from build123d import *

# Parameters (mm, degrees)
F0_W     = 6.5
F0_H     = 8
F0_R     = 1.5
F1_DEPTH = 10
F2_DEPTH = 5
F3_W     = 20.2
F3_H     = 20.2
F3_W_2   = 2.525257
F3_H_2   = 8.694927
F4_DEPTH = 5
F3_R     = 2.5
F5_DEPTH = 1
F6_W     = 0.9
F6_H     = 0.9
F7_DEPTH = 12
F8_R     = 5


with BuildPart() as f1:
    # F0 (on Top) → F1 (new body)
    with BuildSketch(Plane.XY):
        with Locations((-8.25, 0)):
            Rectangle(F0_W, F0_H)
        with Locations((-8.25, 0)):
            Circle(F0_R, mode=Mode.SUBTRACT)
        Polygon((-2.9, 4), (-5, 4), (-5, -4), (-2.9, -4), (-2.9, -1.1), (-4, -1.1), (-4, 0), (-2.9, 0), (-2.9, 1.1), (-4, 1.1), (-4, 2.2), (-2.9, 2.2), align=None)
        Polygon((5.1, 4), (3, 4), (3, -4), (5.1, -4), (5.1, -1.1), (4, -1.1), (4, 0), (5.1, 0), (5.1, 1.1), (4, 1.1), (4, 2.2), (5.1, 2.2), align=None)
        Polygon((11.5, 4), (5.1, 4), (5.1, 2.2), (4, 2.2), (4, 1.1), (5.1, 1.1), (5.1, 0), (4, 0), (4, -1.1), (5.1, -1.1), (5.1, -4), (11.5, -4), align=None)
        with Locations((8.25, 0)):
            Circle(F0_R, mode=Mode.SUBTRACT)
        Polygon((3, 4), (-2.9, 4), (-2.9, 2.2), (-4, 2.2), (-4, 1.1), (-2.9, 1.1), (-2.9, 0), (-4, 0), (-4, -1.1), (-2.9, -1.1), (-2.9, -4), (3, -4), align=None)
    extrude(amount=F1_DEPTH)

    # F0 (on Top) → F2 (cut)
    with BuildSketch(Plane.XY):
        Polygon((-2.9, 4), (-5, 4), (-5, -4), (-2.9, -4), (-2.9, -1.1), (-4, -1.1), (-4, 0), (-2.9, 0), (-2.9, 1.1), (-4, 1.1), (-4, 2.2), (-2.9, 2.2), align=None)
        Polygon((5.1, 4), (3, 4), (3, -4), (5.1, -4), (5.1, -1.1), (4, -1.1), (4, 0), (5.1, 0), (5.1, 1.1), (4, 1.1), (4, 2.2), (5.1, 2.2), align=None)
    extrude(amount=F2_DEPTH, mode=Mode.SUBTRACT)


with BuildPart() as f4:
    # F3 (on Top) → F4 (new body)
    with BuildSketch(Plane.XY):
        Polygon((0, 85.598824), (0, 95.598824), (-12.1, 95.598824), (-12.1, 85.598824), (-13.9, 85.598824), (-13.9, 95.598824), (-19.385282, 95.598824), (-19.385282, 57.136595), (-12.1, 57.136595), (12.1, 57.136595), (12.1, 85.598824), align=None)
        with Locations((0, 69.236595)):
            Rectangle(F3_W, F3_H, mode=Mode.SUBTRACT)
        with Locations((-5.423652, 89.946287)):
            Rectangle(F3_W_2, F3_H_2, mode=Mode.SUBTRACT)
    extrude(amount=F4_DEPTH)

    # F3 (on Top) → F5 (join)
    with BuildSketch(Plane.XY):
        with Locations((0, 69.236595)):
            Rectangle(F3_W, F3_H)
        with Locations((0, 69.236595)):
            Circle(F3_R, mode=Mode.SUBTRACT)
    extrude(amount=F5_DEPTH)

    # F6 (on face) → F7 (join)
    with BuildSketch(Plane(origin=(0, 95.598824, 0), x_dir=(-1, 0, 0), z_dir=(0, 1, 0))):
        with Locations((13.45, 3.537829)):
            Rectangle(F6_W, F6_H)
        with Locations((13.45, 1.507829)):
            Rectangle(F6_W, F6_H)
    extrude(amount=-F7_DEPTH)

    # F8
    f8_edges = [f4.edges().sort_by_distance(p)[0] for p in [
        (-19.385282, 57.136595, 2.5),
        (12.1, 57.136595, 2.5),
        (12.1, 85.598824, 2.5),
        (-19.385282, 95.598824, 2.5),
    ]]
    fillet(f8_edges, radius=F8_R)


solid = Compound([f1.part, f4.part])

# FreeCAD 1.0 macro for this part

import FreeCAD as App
import Part
import Sketcher

V = App.Vector


def edges_at(feature, points):
    """Names of the edges that pass closest to the given points."""
    edges = feature.Shape.Edges
    near = lambda p: min(range(len(edges)), key=lambda i: edges[i].distToShape(Part.Vertex(*p))[0])
    return sorted({f"Edge{near(p) + 1}" for p in points})


def add_polygon(sketch, points):
    """Adds a closed chain of lines whose ends are joined by coincident constraints."""
    first, n = sketch.GeometryCount, len(points)
    for a, b in zip(points, points[1:] + points[:1]):
        sketch.addGeometry(Part.LineSegment(App.Vector(*a, 0), App.Vector(*b, 0)), False)
    for i in range(n):
        sketch.addConstraint(Sketcher.Constraint("Coincident", first + i, 2, first + (i + 1) % n, 1))

doc = App.newDocument("Part")
params = doc.addObject("Spreadsheet::Sheet", "Params")
for row, (alias, value) in enumerate([
    ("sketch1_diameter", "3 mm"),
    ("sketch1_width", "23 mm"),
    ("sketch1_height", "8 mm"),
    ("pad1_length", "10 mm"),
    ("sketch2_height", "8 mm"),
    ("sketch2_width", "2.1 mm"),
    ("sketch2_width2", "1.1 mm"),
    ("pocket1_length", "5 mm"),
    ("sketch3_height", "10 mm"),
    ("sketch3_width", "12.1 mm"),
    ("sketch3_width2", "1.8 mm"),
    ("sketch3_width3", "20.2 mm"),
    ("pad2_length", "5 mm"),
    ("sketch4_diameter", "5 mm"),
    ("sketch4_width", "20.2 mm"),
    ("pad3_length", "1 mm"),
    ("sketch5_width", "0.9 mm"),
    ("pad4_length", "12 mm"),
    ("fillet_radius", "5 mm"),
], start=1):
    params.set(f"A{row}", alias)
    params.set(f"B{row}", "=" + value)
    params.setAlias(f"B{row}", alias)

body = doc.addObject("PartDesign::Body", "Body")

sketch1 = body.newObject("Sketcher::SketchObject", "Sketch")
sketch1.AttachmentSupport = (doc.getObject("XY_Plane"), [""])
sketch1.MapMode = "FlatFace"
add_polygon(sketch1, [(-11.5, 4), (-11.5, -4), (11.5, -4), (11.5, 4)])
sketch1.addGeometry(Part.Circle(V(-8.25, 0, 0), V(0, 0, 1), 1.5), False)
sketch1.addGeometry(Part.Circle(V(8.25, 0, 0), V(0, 0, 1), 1.5), False)
sketch1.addConstraint(Sketcher.Constraint("Vertical", 0))
sketch1.addConstraint(Sketcher.Constraint("Horizontal", 1))
sketch1.addConstraint(Sketcher.Constraint("Vertical", 2))
sketch1.addConstraint(Sketcher.Constraint("Horizontal", 3))
sketch1.addConstraint(Sketcher.Constraint("Equal", 4, 5))
sketch1.addConstraint(Sketcher.Constraint("Symmetric", 4, 3, 5, 3, -1, 1))
sketch1.addConstraint(Sketcher.Constraint("Symmetric", 0, 2, 2, 2, -1, 1))
sketch1.addConstraint(Sketcher.Constraint("PointOnObject", 4, 3, -1))
sketch1.addConstraint(Sketcher.Constraint("Diameter", 4, 3.0))
sketch1.addConstraint(Sketcher.Constraint("DistanceX", 1, 1, 1, 2, 23.0))
sketch1.addConstraint(Sketcher.Constraint("DistanceY", 0, 2, 0, 1, 8.0))
sketch1.addConstraint(Sketcher.Constraint("DistanceX", 4, 3, 5, 3, 16.5))
sketch1.setExpression("Constraints[12]", "Params.sketch1_diameter")
sketch1.setExpression("Constraints[13]", "Params.sketch1_width")
sketch1.setExpression("Constraints[14]", "Params.sketch1_height")
pad1 = body.newObject("PartDesign::Pad", "Pad")
pad1.Profile = sketch1
pad1.setExpression("Length", "Params.pad1_length")

sketch2 = body.newObject("Sketcher::SketchObject", "Sketch001")
sketch2.AttachmentSupport = (doc.getObject("XY_Plane"), [""])
sketch2.MapMode = "FlatFace"
add_polygon(sketch2, [(-2.9, 4), (-5, 4), (-5, -4), (-2.9, -4), (-2.9, -1.1), (-4, -1.1), (-4, 0), (-2.9, 0), (-2.9, 1.1), (-4, 1.1), (-4, 2.2), (-2.9, 2.2)])
add_polygon(sketch2, [(5.1, 4), (3, 4), (3, -4), (5.1, -4), (5.1, -1.1), (4, -1.1), (4, 0), (5.1, 0), (5.1, 1.1), (4, 1.1), (4, 2.2), (5.1, 2.2)])
sketch2.addConstraint(Sketcher.Constraint("Horizontal", 0))
sketch2.addConstraint(Sketcher.Constraint("Vertical", 1))
sketch2.addConstraint(Sketcher.Constraint("Horizontal", 2))
sketch2.addConstraint(Sketcher.Constraint("Vertical", 3))
sketch2.addConstraint(Sketcher.Constraint("Horizontal", 4))
sketch2.addConstraint(Sketcher.Constraint("Vertical", 5))
sketch2.addConstraint(Sketcher.Constraint("Horizontal", 6))
sketch2.addConstraint(Sketcher.Constraint("Vertical", 7))
sketch2.addConstraint(Sketcher.Constraint("Horizontal", 8))
sketch2.addConstraint(Sketcher.Constraint("Vertical", 9))
sketch2.addConstraint(Sketcher.Constraint("Horizontal", 10))
sketch2.addConstraint(Sketcher.Constraint("Vertical", 11))
sketch2.addConstraint(Sketcher.Constraint("Horizontal", 12))
sketch2.addConstraint(Sketcher.Constraint("Vertical", 13))
sketch2.addConstraint(Sketcher.Constraint("Horizontal", 14))
sketch2.addConstraint(Sketcher.Constraint("Vertical", 15))
sketch2.addConstraint(Sketcher.Constraint("Horizontal", 16))
sketch2.addConstraint(Sketcher.Constraint("Vertical", 17))
sketch2.addConstraint(Sketcher.Constraint("Horizontal", 18))
sketch2.addConstraint(Sketcher.Constraint("Vertical", 19))
sketch2.addConstraint(Sketcher.Constraint("Horizontal", 20))
sketch2.addConstraint(Sketcher.Constraint("Vertical", 21))
sketch2.addConstraint(Sketcher.Constraint("Horizontal", 22))
sketch2.addConstraint(Sketcher.Constraint("Vertical", 23))
sketch2.addConstraint(Sketcher.Constraint("Symmetric", 8, 2, 16, 2, -1, 1))
sketch2.addConstraint(Sketcher.Constraint("Symmetric", 5, 2, 17, 2, -1, 1))
sketch2.addConstraint(Sketcher.Constraint("Symmetric", 4, 2, 20, 2, -1, 1))
sketch2.addConstraint(Sketcher.Constraint("Symmetric", 3, 2, 7, 2, -1))
sketch2.addConstraint(Sketcher.Constraint("Symmetric", 2, 2, 11, 2, -1))
sketch2.addConstraint(Sketcher.Constraint("Symmetric", 14, 2, 23, 2, -1))
sketch2.addConstraint(Sketcher.Constraint("PointOnObject", 5, 2, -1))
sketch2.addConstraint(Sketcher.Constraint("Horizontal", 11, 2, 12, 2))
sketch2.addConstraint(Sketcher.Constraint("Horizontal", 10, 2, 21, 2))
sketch2.addConstraint(Sketcher.Constraint("Vertical", 15, 2, 18, 2))
sketch2.addConstraint(Sketcher.Constraint("Equal", 2, 12))
sketch2.addConstraint(Sketcher.Constraint("Equal", 10, 16))
sketch2.addConstraint(Sketcher.Constraint("Equal", 22, 5))
sketch2.addConstraint(Sketcher.Constraint("Equal", 7, 9))
sketch2.addConstraint(Sketcher.Constraint("DistanceY", 1, 2, 1, 1, 8.0))
sketch2.addConstraint(Sketcher.Constraint("DistanceX", 0, 2, 0, 1, 2.1))
sketch2.addConstraint(Sketcher.Constraint("DistanceX", 4, 2, 4, 1, 1.1))
sketch2.addConstraint(Sketcher.Constraint("DistanceX", 0, 2, -1, 1, 5.0))
sketch2.setExpression("Constraints[62]", "Params.sketch2_height")
sketch2.setExpression("Constraints[63]", "Params.sketch2_width")
sketch2.setExpression("Constraints[64]", "Params.sketch2_width2")
pocket1 = body.newObject("PartDesign::Pocket", "Pocket")
pocket1.Profile = sketch2
pocket1.setExpression("Length", "Params.pocket1_length")
pocket1.Reversed = True
body2 = doc.addObject("PartDesign::Body", "Body001")

sketch3 = body2.newObject("Sketcher::SketchObject", "Sketch002")
sketch3.AttachmentSupport = (doc.getObject("XY_Plane001"), [""])
sketch3.MapMode = "FlatFace"
add_polygon(sketch3, [(0, 85.598824), (0, 95.598824), (-12.1, 95.598824), (-12.1, 85.598824), (-13.9, 85.598824), (-13.9, 95.598824), (-19.385282, 95.598824), (-19.385282, 57.136595), (12.1, 57.136595), (12.1, 85.598824)])
add_polygon(sketch3, [(10.1, 59.136595), (-10.1, 59.136595), (-10.1, 79.336595), (10.1, 79.336595)])
add_polygon(sketch3, [(-4.161023, 85.598823), (-6.68628, 85.598823), (-6.68628, 94.293751), (-4.161023, 94.293751)])
sketch3.addConstraint(Sketcher.Constraint("Vertical", 0))
sketch3.addConstraint(Sketcher.Constraint("Horizontal", 1))
sketch3.addConstraint(Sketcher.Constraint("Vertical", 2))
sketch3.addConstraint(Sketcher.Constraint("Horizontal", 3))
sketch3.addConstraint(Sketcher.Constraint("Vertical", 4))
sketch3.addConstraint(Sketcher.Constraint("Horizontal", 5))
sketch3.addConstraint(Sketcher.Constraint("Vertical", 6))
sketch3.addConstraint(Sketcher.Constraint("Horizontal", 7))
sketch3.addConstraint(Sketcher.Constraint("Vertical", 8))
sketch3.addConstraint(Sketcher.Constraint("Horizontal", 9))
sketch3.addConstraint(Sketcher.Constraint("Horizontal", 10))
sketch3.addConstraint(Sketcher.Constraint("Vertical", 11))
sketch3.addConstraint(Sketcher.Constraint("Horizontal", 12))
sketch3.addConstraint(Sketcher.Constraint("Vertical", 13))
sketch3.addConstraint(Sketcher.Constraint("Horizontal", 14))
sketch3.addConstraint(Sketcher.Constraint("Vertical", 15))
sketch3.addConstraint(Sketcher.Constraint("Horizontal", 16))
sketch3.addConstraint(Sketcher.Constraint("Vertical", 17))
sketch3.addConstraint(Sketcher.Constraint("Symmetric", 2, 2, 8, 2, -2))
sketch3.addConstraint(Sketcher.Constraint("PointOnObject", 0, 2, -2))
sketch3.addConstraint(Sketcher.Constraint("Horizontal", 1, 2, 4, 2))
sketch3.addConstraint(Sketcher.Constraint("Horizontal", 9, 2, 14, 2))
sketch3.addConstraint(Sketcher.Constraint("Equal", 12, 11))
sketch3.addConstraint(Sketcher.Constraint("DistanceY", 0, 1, 0, 2, 10.0))
sketch3.addConstraint(Sketcher.Constraint("DistanceX", 1, 2, 1, 1, 12.1))
sketch3.addConstraint(Sketcher.Constraint("DistanceX", 3, 2, 3, 1, 1.8))
sketch3.addConstraint(Sketcher.Constraint("DistanceX", 10, 2, 10, 1, 20.2))
sketch3.addConstraint(Sketcher.Constraint("DistanceY", 6, 2, 10, 2, 2.0))
sketch3.addConstraint(Sketcher.Constraint("DistanceX", 2, 2, 10, 2, 2.0))
sketch3.addConstraint(Sketcher.Constraint("DistanceX", 5, 2, 5, 1, 5.485282))
sketch3.addConstraint(Sketcher.Constraint("DistanceY", 6, 2, 6, 1, 38.462229))
sketch3.addConstraint(Sketcher.Constraint("DistanceX", 14, 2, 14, 1, 2.525257))
sketch3.addConstraint(Sketcher.Constraint("DistanceY", 15, 1, 15, 2, 8.694927))
sketch3.addConstraint(Sketcher.Constraint("DistanceX", 14, 2, -1, 1, 6.68628))
sketch3.addConstraint(Sketcher.Constraint("DistanceY", -1, 1, 15, 2, 94.293751))
sketch3.setExpression("Constraints[41]", "Params.sketch3_height")
sketch3.setExpression("Constraints[42]", "Params.sketch3_width")
sketch3.setExpression("Constraints[43]", "Params.sketch3_width2")
sketch3.setExpression("Constraints[44]", "Params.sketch3_width3")
pad2 = body2.newObject("PartDesign::Pad", "Pad001")
pad2.Profile = sketch3
pad2.setExpression("Length", "Params.pad2_length")

sketch4 = body2.newObject("Sketcher::SketchObject", "Sketch003")
sketch4.AttachmentSupport = (doc.getObject("XY_Plane001"), [""])
sketch4.MapMode = "FlatFace"
add_polygon(sketch4, [(-10.1, 79.336595), (-10.1, 59.136595), (10.1, 59.136595), (10.1, 79.336595)])
sketch4.addGeometry(Part.Circle(V(0, 69.236595, 0), V(0, 0, 1), 2.5), False)
sketch4.addConstraint(Sketcher.Constraint("Vertical", 0))
sketch4.addConstraint(Sketcher.Constraint("Horizontal", 1))
sketch4.addConstraint(Sketcher.Constraint("Vertical", 2))
sketch4.addConstraint(Sketcher.Constraint("Horizontal", 3))
sketch4.addConstraint(Sketcher.Constraint("PointOnObject", 4, 3, -2))
sketch4.addConstraint(Sketcher.Constraint("Equal", 3, 0))
sketch4.addConstraint(Sketcher.Constraint("Diameter", 4, 5.0))
sketch4.addConstraint(Sketcher.Constraint("DistanceX", 1, 1, 1, 2, 20.2))
sketch4.addConstraint(Sketcher.Constraint("DistanceX", 0, 2, -1, 1, 10.1))
sketch4.addConstraint(Sketcher.Constraint("DistanceY", 0, 2, 4, 3, 10.1))
sketch4.addConstraint(Sketcher.Constraint("DistanceY", -1, 1, 4, 3, 69.236595))
sketch4.setExpression("Constraints[10]", "Params.sketch4_diameter")
sketch4.setExpression("Constraints[11]", "Params.sketch4_width")
pad3 = body2.newObject("PartDesign::Pad", "Pad002")
pad3.Profile = sketch4
pad3.setExpression("Length", "Params.pad3_length")

sketch5 = body2.newObject("Sketcher::SketchObject", "Sketch004")
sketch5.AttachmentSupport = (doc.getObject("XZ_Plane001"), [""])
sketch5.MapMode = "FlatFace"
sketch5.AttachmentOffset = App.Placement(V(0, 0, -95.598824), App.Rotation())
add_polygon(sketch5, [(-13, 3.987829), (-13, 3.087829), (-13.9, 3.087829), (-13.9, 3.987829)])
add_polygon(sketch5, [(-13, 1.957829), (-13, 1.057829), (-13.9, 1.057829), (-13.9, 1.957829)])
sketch5.addConstraint(Sketcher.Constraint("Vertical", 0))
sketch5.addConstraint(Sketcher.Constraint("Horizontal", 1))
sketch5.addConstraint(Sketcher.Constraint("Vertical", 2))
sketch5.addConstraint(Sketcher.Constraint("Horizontal", 3))
sketch5.addConstraint(Sketcher.Constraint("Vertical", 4))
sketch5.addConstraint(Sketcher.Constraint("Horizontal", 5))
sketch5.addConstraint(Sketcher.Constraint("Vertical", 6))
sketch5.addConstraint(Sketcher.Constraint("Horizontal", 7))
sketch5.addConstraint(Sketcher.Constraint("Vertical", 3, 2, 4, 2))
sketch5.addConstraint(Sketcher.Constraint("Vertical", 2, 2, 5, 2))
sketch5.addConstraint(Sketcher.Constraint("Equal", 7, 0))
sketch5.addConstraint(Sketcher.Constraint("Equal", 2, 4))
sketch5.addConstraint(Sketcher.Constraint("DistanceX", 1, 2, 1, 1, 0.9))
sketch5.addConstraint(Sketcher.Constraint("DistanceX", 0, 2, -1, 1, 13.0))
sketch5.addConstraint(Sketcher.Constraint("DistanceY", 4, 2, 0, 2, 2.03))
sketch5.addConstraint(Sketcher.Constraint("DistanceY", -1, 1, 0, 2, 3.087829))
sketch5.setExpression("Constraints[20]", "Params.sketch5_width")
pad4 = body2.newObject("PartDesign::Pad", "Pad003")
pad4.Profile = sketch5
pad4.setExpression("Length", "Params.pad4_length")
doc.recompute()

fillet = body2.newObject("PartDesign::Fillet", "Fillet")
fillet.Base = (pad4, edges_at(pad4, [
    (-19.385, 57.137, 2.5),
    (12.1, 57.137, 2.5),
    (12.1, 85.599, 2.5),
    (-19.385, 95.599, 2.5),
]))
fillet.setExpression("Radius", "Params.fillet_radius")

doc.recompute()
